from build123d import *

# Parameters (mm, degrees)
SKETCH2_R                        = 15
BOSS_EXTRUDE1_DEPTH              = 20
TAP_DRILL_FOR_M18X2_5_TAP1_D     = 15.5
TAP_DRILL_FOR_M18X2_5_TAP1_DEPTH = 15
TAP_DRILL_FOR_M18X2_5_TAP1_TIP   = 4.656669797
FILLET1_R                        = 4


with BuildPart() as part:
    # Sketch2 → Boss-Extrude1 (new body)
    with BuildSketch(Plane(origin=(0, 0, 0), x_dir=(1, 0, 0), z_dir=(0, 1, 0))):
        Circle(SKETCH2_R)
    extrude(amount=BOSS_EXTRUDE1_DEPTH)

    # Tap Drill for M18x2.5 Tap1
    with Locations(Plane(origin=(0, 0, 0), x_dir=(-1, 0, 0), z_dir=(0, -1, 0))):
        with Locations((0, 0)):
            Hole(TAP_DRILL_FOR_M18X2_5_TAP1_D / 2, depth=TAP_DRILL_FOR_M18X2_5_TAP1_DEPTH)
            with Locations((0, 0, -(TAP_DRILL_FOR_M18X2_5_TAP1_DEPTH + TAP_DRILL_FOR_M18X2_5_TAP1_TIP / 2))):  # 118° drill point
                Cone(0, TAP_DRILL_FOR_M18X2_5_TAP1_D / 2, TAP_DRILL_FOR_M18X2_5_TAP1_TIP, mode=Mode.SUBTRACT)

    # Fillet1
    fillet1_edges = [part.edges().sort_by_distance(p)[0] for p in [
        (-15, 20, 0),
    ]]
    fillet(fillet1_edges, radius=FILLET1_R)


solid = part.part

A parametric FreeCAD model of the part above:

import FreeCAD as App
import Part
import Sketcher


def edges_at(feature, points):
    """Names of the edges that pass closest to the given points."""
    edges = feature.Shape.Edges
    near = lambda p: min(range(len(edges)), key=lambda i: edges[i].distToShape(Part.Vertex(*p))[0])
    return sorted({f"Edge{near(p) + 1}" for p in points})

doc = App.newDocument("Part")
body = doc.addObject("PartDesign::Body", "Body")

sketch1 = doc.addObject("Sketcher::SketchObject", "Sketch")
body.addObject(sketch1)
sketch1.AttachmentSupport = (doc.XZ_Plane, [""])
sketch1.MapMode = "FlatFace"
sketch1.addGeometry(Part.Circle(App.Vector(0, 0, 0), App.Vector(0, 0, 1), 15), False)
sketch1.addConstraint([
    Sketcher.Constraint("Coincident", 0, 3, -1, 1),
    Sketcher.Constraint("Diameter", 0, 30.0),
])
pad1 = doc.addObject("PartDesign::Pad", "Pad")
body.addObject(pad1)
pad1.Profile = sketch1
pad1.Length = 20
pad1.Reversed = True

sketch2 = doc.addObject("Sketcher::SketchObject", "Sketch001")
body.addObject(sketch2)
sketch2.AttachmentSupport = (doc.XZ_Plane, [""])
sketch2.MapMode = "FlatFace"
sketch2.addGeometry(Part.Circle(App.Vector(0, 0, 0), App.Vector(0, 0, 1), 8), False)
sketch2.addConstraint([
    Sketcher.Constraint("Coincident", 0, 3, -1, 1),
    Sketcher.Constraint("Diameter", 0, 15.5),
])
doc.recompute()
hole = doc.addObject("PartDesign::Hole", "Hole")
body.addObject(hole)
hole.Profile = sketch2
hole.ThreadType = "None"
hole.Diameter = 15.5
hole.DepthType = "Dimension"
hole.Depth = 15
hole.DrillPoint = "Angled"
hole.DrillPointAngle = 118
doc.recompute()

fillet = doc.addObject("PartDesign::Fillet", "Fillet")
body.addObject(fillet)
fillet.Base = (hole, edges_at(hole, [(-15, 20, 0)]))
fillet.Radius = 4

doc.recompute()
